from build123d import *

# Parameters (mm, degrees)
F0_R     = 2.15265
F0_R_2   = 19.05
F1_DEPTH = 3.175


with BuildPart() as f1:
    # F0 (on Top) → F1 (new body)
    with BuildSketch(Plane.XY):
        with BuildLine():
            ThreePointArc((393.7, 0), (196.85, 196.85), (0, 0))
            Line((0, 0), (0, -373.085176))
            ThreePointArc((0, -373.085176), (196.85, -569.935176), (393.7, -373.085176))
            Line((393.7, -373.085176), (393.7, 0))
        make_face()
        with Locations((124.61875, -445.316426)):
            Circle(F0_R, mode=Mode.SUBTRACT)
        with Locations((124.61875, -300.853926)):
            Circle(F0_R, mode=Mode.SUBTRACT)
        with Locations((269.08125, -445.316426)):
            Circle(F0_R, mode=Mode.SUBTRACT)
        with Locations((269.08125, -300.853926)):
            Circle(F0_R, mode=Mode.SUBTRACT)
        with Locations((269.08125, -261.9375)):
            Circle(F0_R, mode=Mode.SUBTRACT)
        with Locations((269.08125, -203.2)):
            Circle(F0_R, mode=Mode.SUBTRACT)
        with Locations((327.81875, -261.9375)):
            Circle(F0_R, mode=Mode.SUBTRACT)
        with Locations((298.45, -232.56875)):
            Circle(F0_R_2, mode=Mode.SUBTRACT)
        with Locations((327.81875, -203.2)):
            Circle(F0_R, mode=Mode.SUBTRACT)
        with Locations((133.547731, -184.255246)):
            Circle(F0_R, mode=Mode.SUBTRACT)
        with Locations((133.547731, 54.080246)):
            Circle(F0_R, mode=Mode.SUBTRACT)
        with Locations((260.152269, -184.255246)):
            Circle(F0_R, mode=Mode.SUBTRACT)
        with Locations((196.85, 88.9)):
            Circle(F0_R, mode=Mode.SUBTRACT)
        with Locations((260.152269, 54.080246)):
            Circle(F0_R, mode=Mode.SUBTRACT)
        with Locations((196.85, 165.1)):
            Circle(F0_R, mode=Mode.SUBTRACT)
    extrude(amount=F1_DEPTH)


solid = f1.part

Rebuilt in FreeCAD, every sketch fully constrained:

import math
import FreeCAD as App
import Part
import Sketcher
Q = App.Units.Quantity

doc = App.newDocument("Part")
body = doc.addObject("PartDesign::Body", "Body")

# Sketch on XY plane
sketch1 = body.newObject("Sketcher::SketchObject", "Sketch")
sketch1.AttachmentSupport = (doc.getObject("XY_Plane"), [""])
sketch1.MapMode = "FlatFace"
sketch1.addGeometry(Part.ArcOfCircle(Part.Circle(App.Vector(196.85, 0, 0), App.Vector(0, 0, 1), 196.85), math.radians(0), math.radians(180)), False)
sketch1.addGeometry(Part.LineSegment(App.Vector(0, 0, 0), App.Vector(0, -373.085176, 0)), False)
sketch1.addGeometry(Part.ArcOfCircle(Part.Circle(App.Vector(196.85, -373.085176, 0), App.Vector(0, 0, 1), 196.85), math.radians(180), math.radians(360)), False)
sketch1.addGeometry(Part.LineSegment(App.Vector(393.7, -373.085176, 0), App.Vector(393.7, 0, 0)), False)
sketch1.addGeometry(Part.Circle(App.Vector(124.61875, -445.316426, 0), App.Vector(0, 0, 1), 2.15265), False)
sketch1.addGeometry(Part.Circle(App.Vector(124.61875, -300.853926, 0), App.Vector(0, 0, 1), 2.15265), False)
sketch1.addGeometry(Part.Circle(App.Vector(133.547731, -184.255246, 0), App.Vector(0, 0, 1), 2.15265), False)
sketch1.addGeometry(Part.Circle(App.Vector(269.08125, -445.316426, 0), App.Vector(0, 0, 1), 2.15265), False)
sketch1.addGeometry(Part.Circle(App.Vector(269.08125, -300.853926, 0), App.Vector(0, 0, 1), 2.15265), False)
sketch1.addGeometry(Part.Circle(App.Vector(269.08125, -261.9375, 0), App.Vector(0, 0, 1), 2.15265), False)
sketch1.addGeometry(Part.Circle(App.Vector(260.152269, -184.255246, 0), App.Vector(0, 0, 1), 2.15265), False)
sketch1.addGeometry(Part.Circle(App.Vector(269.08125, -203.2, 0), App.Vector(0, 0, 1), 2.15265), False)
sketch1.addGeometry(Part.Circle(App.Vector(298.45, -232.56875, 0), App.Vector(0, 0, 1), 19.05), False)
sketch1.addGeometry(Part.Circle(App.Vector(327.81875, -261.9375, 0), App.Vector(0, 0, 1), 2.15265), False)
sketch1.addGeometry(Part.Circle(App.Vector(327.81875, -203.2, 0), App.Vector(0, 0, 1), 2.15265), False)
sketch1.addGeometry(Part.Circle(App.Vector(133.547731, 54.080246, 0), App.Vector(0, 0, 1), 2.15265), False)
sketch1.addGeometry(Part.Circle(App.Vector(196.85, 88.9, 0), App.Vector(0, 0, 1), 2.15265), False)
sketch1.addGeometry(Part.Circle(App.Vector(196.85, 165.1, 0), App.Vector(0, 0, 1), 2.15265), False)
sketch1.addGeometry(Part.Circle(App.Vector(260.152269, 54.080246, 0), App.Vector(0, 0, 1), 2.15265), False)
sketch1.addConstraint(Sketcher.Constraint("Tangent", 0, 2, 1, 1))
sketch1.addConstraint(Sketcher.Constraint("Tangent", 1, 2, 2, 1))
sketch1.addConstraint(Sketcher.Constraint("Tangent", 2, 2, 3, 1))
sketch1.addConstraint(Sketcher.Constraint("Tangent", 3, 2, 0, 1))
sketch1.addConstraint(Sketcher.Constraint("Vertical", 1))
sketch1.addConstraint(Sketcher.Constraint("Vertical", 3))
sketch1.addConstraint(Sketcher.Constraint("Coincident", 0, 2, -1, 1))
sketch1.addConstraint(Sketcher.Constraint("Equal", 4, 5))
sketch1.addConstraint(Sketcher.Constraint("Equal", 5, 6))
sketch1.addConstraint(Sketcher.Constraint("Equal", 6, 7))
sketch1.addConstraint(Sketcher.Constraint("Equal", 7, 8))
sketch1.addConstraint(Sketcher.Constraint("Equal", 8, 9))
sketch1.addConstraint(Sketcher.Constraint("Equal", 9, 10))
sketch1.addConstraint(Sketcher.Constraint("Equal", 10, 11))
sketch1.addConstraint(Sketcher.Constraint("Equal", 11, 13))
sketch1.addConstraint(Sketcher.Constraint("Equal", 13, 14))
sketch1.addConstraint(Sketcher.Constraint("Equal", 14, 15))
sketch1.addConstraint(Sketcher.Constraint("Equal", 15, 16))
sketch1.addConstraint(Sketcher.Constraint("Equal", 16, 17))
sketch1.addConstraint(Sketcher.Constraint("Equal", 17, 18))
sketch1.addConstraint(Sketcher.Constraint("Horizontal", 4, 3, 7, 3))
sketch1.addConstraint(Sketcher.Constraint("Horizontal", 5, 3, 8, 3))
sketch1.addConstraint(Sketcher.Constraint("Horizontal", 6, 3, 10, 3))
sketch1.addConstraint(Sketcher.Constraint("Horizontal", 9, 3, 13, 3))
sketch1.addConstraint(Sketcher.Constraint("Horizontal", 11, 3, 14, 3))
sketch1.addConstraint(Sketcher.Constraint("Horizontal", 15, 3, 18, 3))
sketch1.addConstraint(Sketcher.Constraint("Vertical", 4, 3, 5, 3))
sketch1.addConstraint(Sketcher.Constraint("Vertical", 7, 3, 8, 3))
sketch1.addConstraint(Sketcher.Constraint("Vertical", 8, 3, 9, 3))
sketch1.addConstraint(Sketcher.Constraint("Vertical", 9, 3, 11, 3))
sketch1.addConstraint(Sketcher.Constraint("Vertical", 13, 3, 14, 3))
sketch1.addConstraint(Sketcher.Constraint("Vertical", 6, 3, 15, 3))
sketch1.addConstraint(Sketcher.Constraint("Vertical", 2, 3, 16, 3))
sketch1.addConstraint(Sketcher.Constraint("Vertical", 16, 3, 17, 3))
sketch1.addConstraint(Sketcher.Constraint("Vertical", 10, 3, 18, 3))
sketch1.addConstraint(Sketcher.Constraint("Diameter", 12, Q("1.5 in")))
sketch1.addConstraint(Sketcher.Constraint("Radius", 0, Q("7.75 in")))
sketch1.addConstraint(Sketcher.Constraint("DistanceY", 11, 3, -1, 1, Q("8 in")))
sketch1.addConstraint(Sketcher.Constraint("DistanceY", 16, 3, 17, 3, Q("3 in")))
sketch1.addConstraint(Sketcher.Constraint("Diameter", 4, Q("0.1695 in")))
sketch1.addConstraint(Sketcher.Constraint("DistanceY", -1, 1, 16, 3, Q("3.5 in")))
sketch1.addConstraint(Sketcher.Constraint("DistanceX", -1, 1, 12, 3, Q("11.75 in")))
sketch1.addConstraint(Sketcher.Constraint("DistanceX", -1, 1, 4, 3, Q("4.90625 in")))
sketch1.addConstraint(Sketcher.Constraint("DistanceX", -1, 1, 7, 3, Q("10.59375 in")))
sketch1.addConstraint(Sketcher.Constraint("DistanceY", 9, 3, -1, 1, Q("10.3125 in")))
sketch1.addConstraint(Sketcher.Constraint("DistanceY", 12, 3, -1, 1, Q("9.15625 in")))
sketch1.addConstraint(Sketcher.Constraint("DistanceX", -1, 1, 13, 3, Q("12.90625 in")))
sketch1.addConstraint(Sketcher.Constraint("DistanceY", 4, 3, 2, 3, Q("2.84375 in")))
sketch1.addConstraint(Sketcher.Constraint("DistanceY", 2, 3, 5, 3, Q("2.84375 in")))
sketch1.addConstraint(Sketcher.Constraint("DistanceY", 1, 2, 1, 1, 373.085176))
sketch1.addConstraint(Sketcher.Constraint("DistanceX", -1, 1, 6, 3, 133.547731))
sketch1.addConstraint(Sketcher.Constraint("DistanceX", -1, 1, 10, 3, 260.152269))
sketch1.addConstraint(Sketcher.Constraint("DistanceY", 5, 3, 6, 3, 116.59868))
sketch1.addConstraint(Sketcher.Constraint("DistanceY", 6, 3, 15, 3, 238.335492))
pad1 = body.newObject("PartDesign::Pad", "Pad")
pad1.Profile = sketch1
pad1.Length = Q("0.125 in")

doc.recompute()
